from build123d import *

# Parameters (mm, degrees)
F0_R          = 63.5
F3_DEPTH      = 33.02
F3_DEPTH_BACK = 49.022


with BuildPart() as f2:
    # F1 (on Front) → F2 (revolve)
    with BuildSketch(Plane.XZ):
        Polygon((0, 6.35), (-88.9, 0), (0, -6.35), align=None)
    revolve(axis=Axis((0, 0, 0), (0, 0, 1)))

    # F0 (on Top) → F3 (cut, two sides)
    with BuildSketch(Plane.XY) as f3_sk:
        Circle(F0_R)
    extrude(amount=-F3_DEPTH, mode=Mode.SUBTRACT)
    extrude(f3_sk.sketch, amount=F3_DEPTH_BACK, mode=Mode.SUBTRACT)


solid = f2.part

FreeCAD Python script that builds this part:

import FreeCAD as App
import Part
import Sketcher
from FreeCAD import Vector
Q = App.Units.Quantity


def add_polygon(sketch, points):
    """Adds a closed chain of lines whose ends are joined by coincident constraints."""
    first, n = sketch.GeometryCount, len(points)
    for a, b in zip(points, points[1:] + points[:1]):
        sketch.addGeometry(Part.LineSegment(App.Vector(*a, 0), App.Vector(*b, 0)), False)
    for i in range(n):
        sketch.addConstraint(Sketcher.Constraint("Coincident", first + i, 2, first + (i + 1) % n, 1))

doc = App.newDocument("Part")
params = doc.addObject("Spreadsheet::Sheet", "Params")
for row, (alias, value) in enumerate([
    ("sketch1_height", "0.5 in"),
    ("revolution_angle", "360 deg"),
    ("sketch2_diameter", "5 in"),
], start=1):
    params.set(f"A{row}", alias)
    params.set(f"B{row}", "=" + value)
    params.setAlias(f"B{row}", alias)

body = doc.addObject("PartDesign::Body", "Body")

# Sketch on XZ plane
sketch1 = body.newObject("Sketcher::SketchObject", "Sketch")
sketch1.AttachmentSupport = (doc.getObject("XZ_Plane"), [""])
sketch1.MapMode = "FlatFace"
add_polygon(sketch1, [(0, 6.35), (-88.9, 0), (0, -6.35)])  # lines 0-2
sketch1.addConstraint(Sketcher.Constraint("Vertical", 2))
sketch1.addConstraint(Sketcher.Constraint("Symmetric", 1, 2, 2, 2, -1, 1))
sketch1.addConstraint(Sketcher.Constraint("PointOnObject", 0, 2, -1))
sketch1.addConstraint(Sketcher.Constraint("DistanceY", 2, 1, 2, 2, Q("0.5 in")))
sketch1.addConstraint(Sketcher.Constraint("DistanceX", 0, 2, -1, 1, Q("3.5 in")))
sketch1.setExpression("Constraints[6]", "Params.sketch1_height")
revolution = body.newObject("PartDesign::Revolution", "Revolution")
revolution.Profile = sketch1
revolution.ReferenceAxis = (sketch1, ["V_Axis"])
revolution.setExpression("Angle", "Params.revolution_angle")

# Sketch on XY plane
sketch2 = body.newObject("Sketcher::SketchObject", "Sketch001")
sketch2.AttachmentSupport = (doc.getObject("XY_Plane"), [""])
sketch2.MapMode = "FlatFace"
sketch2.addGeometry(Part.Circle(Vector(0, 0, 0), Vector(0, 0, 1), 63.5), False)
sketch2.addConstraint(Sketcher.Constraint("Coincident", 0, 3, -1, 1))
sketch2.addConstraint(Sketcher.Constraint("Diameter", 0, Q("5 in")))
sketch2.setExpression("Constraints[1]", "Params.sketch2_diameter")
pocket1 = body.newObject("PartDesign::Pocket", "Pocket")
pocket1.Profile = sketch2
pocket1.Type = "ThroughAll"
pocket1.Midplane = True

doc.recompute()
